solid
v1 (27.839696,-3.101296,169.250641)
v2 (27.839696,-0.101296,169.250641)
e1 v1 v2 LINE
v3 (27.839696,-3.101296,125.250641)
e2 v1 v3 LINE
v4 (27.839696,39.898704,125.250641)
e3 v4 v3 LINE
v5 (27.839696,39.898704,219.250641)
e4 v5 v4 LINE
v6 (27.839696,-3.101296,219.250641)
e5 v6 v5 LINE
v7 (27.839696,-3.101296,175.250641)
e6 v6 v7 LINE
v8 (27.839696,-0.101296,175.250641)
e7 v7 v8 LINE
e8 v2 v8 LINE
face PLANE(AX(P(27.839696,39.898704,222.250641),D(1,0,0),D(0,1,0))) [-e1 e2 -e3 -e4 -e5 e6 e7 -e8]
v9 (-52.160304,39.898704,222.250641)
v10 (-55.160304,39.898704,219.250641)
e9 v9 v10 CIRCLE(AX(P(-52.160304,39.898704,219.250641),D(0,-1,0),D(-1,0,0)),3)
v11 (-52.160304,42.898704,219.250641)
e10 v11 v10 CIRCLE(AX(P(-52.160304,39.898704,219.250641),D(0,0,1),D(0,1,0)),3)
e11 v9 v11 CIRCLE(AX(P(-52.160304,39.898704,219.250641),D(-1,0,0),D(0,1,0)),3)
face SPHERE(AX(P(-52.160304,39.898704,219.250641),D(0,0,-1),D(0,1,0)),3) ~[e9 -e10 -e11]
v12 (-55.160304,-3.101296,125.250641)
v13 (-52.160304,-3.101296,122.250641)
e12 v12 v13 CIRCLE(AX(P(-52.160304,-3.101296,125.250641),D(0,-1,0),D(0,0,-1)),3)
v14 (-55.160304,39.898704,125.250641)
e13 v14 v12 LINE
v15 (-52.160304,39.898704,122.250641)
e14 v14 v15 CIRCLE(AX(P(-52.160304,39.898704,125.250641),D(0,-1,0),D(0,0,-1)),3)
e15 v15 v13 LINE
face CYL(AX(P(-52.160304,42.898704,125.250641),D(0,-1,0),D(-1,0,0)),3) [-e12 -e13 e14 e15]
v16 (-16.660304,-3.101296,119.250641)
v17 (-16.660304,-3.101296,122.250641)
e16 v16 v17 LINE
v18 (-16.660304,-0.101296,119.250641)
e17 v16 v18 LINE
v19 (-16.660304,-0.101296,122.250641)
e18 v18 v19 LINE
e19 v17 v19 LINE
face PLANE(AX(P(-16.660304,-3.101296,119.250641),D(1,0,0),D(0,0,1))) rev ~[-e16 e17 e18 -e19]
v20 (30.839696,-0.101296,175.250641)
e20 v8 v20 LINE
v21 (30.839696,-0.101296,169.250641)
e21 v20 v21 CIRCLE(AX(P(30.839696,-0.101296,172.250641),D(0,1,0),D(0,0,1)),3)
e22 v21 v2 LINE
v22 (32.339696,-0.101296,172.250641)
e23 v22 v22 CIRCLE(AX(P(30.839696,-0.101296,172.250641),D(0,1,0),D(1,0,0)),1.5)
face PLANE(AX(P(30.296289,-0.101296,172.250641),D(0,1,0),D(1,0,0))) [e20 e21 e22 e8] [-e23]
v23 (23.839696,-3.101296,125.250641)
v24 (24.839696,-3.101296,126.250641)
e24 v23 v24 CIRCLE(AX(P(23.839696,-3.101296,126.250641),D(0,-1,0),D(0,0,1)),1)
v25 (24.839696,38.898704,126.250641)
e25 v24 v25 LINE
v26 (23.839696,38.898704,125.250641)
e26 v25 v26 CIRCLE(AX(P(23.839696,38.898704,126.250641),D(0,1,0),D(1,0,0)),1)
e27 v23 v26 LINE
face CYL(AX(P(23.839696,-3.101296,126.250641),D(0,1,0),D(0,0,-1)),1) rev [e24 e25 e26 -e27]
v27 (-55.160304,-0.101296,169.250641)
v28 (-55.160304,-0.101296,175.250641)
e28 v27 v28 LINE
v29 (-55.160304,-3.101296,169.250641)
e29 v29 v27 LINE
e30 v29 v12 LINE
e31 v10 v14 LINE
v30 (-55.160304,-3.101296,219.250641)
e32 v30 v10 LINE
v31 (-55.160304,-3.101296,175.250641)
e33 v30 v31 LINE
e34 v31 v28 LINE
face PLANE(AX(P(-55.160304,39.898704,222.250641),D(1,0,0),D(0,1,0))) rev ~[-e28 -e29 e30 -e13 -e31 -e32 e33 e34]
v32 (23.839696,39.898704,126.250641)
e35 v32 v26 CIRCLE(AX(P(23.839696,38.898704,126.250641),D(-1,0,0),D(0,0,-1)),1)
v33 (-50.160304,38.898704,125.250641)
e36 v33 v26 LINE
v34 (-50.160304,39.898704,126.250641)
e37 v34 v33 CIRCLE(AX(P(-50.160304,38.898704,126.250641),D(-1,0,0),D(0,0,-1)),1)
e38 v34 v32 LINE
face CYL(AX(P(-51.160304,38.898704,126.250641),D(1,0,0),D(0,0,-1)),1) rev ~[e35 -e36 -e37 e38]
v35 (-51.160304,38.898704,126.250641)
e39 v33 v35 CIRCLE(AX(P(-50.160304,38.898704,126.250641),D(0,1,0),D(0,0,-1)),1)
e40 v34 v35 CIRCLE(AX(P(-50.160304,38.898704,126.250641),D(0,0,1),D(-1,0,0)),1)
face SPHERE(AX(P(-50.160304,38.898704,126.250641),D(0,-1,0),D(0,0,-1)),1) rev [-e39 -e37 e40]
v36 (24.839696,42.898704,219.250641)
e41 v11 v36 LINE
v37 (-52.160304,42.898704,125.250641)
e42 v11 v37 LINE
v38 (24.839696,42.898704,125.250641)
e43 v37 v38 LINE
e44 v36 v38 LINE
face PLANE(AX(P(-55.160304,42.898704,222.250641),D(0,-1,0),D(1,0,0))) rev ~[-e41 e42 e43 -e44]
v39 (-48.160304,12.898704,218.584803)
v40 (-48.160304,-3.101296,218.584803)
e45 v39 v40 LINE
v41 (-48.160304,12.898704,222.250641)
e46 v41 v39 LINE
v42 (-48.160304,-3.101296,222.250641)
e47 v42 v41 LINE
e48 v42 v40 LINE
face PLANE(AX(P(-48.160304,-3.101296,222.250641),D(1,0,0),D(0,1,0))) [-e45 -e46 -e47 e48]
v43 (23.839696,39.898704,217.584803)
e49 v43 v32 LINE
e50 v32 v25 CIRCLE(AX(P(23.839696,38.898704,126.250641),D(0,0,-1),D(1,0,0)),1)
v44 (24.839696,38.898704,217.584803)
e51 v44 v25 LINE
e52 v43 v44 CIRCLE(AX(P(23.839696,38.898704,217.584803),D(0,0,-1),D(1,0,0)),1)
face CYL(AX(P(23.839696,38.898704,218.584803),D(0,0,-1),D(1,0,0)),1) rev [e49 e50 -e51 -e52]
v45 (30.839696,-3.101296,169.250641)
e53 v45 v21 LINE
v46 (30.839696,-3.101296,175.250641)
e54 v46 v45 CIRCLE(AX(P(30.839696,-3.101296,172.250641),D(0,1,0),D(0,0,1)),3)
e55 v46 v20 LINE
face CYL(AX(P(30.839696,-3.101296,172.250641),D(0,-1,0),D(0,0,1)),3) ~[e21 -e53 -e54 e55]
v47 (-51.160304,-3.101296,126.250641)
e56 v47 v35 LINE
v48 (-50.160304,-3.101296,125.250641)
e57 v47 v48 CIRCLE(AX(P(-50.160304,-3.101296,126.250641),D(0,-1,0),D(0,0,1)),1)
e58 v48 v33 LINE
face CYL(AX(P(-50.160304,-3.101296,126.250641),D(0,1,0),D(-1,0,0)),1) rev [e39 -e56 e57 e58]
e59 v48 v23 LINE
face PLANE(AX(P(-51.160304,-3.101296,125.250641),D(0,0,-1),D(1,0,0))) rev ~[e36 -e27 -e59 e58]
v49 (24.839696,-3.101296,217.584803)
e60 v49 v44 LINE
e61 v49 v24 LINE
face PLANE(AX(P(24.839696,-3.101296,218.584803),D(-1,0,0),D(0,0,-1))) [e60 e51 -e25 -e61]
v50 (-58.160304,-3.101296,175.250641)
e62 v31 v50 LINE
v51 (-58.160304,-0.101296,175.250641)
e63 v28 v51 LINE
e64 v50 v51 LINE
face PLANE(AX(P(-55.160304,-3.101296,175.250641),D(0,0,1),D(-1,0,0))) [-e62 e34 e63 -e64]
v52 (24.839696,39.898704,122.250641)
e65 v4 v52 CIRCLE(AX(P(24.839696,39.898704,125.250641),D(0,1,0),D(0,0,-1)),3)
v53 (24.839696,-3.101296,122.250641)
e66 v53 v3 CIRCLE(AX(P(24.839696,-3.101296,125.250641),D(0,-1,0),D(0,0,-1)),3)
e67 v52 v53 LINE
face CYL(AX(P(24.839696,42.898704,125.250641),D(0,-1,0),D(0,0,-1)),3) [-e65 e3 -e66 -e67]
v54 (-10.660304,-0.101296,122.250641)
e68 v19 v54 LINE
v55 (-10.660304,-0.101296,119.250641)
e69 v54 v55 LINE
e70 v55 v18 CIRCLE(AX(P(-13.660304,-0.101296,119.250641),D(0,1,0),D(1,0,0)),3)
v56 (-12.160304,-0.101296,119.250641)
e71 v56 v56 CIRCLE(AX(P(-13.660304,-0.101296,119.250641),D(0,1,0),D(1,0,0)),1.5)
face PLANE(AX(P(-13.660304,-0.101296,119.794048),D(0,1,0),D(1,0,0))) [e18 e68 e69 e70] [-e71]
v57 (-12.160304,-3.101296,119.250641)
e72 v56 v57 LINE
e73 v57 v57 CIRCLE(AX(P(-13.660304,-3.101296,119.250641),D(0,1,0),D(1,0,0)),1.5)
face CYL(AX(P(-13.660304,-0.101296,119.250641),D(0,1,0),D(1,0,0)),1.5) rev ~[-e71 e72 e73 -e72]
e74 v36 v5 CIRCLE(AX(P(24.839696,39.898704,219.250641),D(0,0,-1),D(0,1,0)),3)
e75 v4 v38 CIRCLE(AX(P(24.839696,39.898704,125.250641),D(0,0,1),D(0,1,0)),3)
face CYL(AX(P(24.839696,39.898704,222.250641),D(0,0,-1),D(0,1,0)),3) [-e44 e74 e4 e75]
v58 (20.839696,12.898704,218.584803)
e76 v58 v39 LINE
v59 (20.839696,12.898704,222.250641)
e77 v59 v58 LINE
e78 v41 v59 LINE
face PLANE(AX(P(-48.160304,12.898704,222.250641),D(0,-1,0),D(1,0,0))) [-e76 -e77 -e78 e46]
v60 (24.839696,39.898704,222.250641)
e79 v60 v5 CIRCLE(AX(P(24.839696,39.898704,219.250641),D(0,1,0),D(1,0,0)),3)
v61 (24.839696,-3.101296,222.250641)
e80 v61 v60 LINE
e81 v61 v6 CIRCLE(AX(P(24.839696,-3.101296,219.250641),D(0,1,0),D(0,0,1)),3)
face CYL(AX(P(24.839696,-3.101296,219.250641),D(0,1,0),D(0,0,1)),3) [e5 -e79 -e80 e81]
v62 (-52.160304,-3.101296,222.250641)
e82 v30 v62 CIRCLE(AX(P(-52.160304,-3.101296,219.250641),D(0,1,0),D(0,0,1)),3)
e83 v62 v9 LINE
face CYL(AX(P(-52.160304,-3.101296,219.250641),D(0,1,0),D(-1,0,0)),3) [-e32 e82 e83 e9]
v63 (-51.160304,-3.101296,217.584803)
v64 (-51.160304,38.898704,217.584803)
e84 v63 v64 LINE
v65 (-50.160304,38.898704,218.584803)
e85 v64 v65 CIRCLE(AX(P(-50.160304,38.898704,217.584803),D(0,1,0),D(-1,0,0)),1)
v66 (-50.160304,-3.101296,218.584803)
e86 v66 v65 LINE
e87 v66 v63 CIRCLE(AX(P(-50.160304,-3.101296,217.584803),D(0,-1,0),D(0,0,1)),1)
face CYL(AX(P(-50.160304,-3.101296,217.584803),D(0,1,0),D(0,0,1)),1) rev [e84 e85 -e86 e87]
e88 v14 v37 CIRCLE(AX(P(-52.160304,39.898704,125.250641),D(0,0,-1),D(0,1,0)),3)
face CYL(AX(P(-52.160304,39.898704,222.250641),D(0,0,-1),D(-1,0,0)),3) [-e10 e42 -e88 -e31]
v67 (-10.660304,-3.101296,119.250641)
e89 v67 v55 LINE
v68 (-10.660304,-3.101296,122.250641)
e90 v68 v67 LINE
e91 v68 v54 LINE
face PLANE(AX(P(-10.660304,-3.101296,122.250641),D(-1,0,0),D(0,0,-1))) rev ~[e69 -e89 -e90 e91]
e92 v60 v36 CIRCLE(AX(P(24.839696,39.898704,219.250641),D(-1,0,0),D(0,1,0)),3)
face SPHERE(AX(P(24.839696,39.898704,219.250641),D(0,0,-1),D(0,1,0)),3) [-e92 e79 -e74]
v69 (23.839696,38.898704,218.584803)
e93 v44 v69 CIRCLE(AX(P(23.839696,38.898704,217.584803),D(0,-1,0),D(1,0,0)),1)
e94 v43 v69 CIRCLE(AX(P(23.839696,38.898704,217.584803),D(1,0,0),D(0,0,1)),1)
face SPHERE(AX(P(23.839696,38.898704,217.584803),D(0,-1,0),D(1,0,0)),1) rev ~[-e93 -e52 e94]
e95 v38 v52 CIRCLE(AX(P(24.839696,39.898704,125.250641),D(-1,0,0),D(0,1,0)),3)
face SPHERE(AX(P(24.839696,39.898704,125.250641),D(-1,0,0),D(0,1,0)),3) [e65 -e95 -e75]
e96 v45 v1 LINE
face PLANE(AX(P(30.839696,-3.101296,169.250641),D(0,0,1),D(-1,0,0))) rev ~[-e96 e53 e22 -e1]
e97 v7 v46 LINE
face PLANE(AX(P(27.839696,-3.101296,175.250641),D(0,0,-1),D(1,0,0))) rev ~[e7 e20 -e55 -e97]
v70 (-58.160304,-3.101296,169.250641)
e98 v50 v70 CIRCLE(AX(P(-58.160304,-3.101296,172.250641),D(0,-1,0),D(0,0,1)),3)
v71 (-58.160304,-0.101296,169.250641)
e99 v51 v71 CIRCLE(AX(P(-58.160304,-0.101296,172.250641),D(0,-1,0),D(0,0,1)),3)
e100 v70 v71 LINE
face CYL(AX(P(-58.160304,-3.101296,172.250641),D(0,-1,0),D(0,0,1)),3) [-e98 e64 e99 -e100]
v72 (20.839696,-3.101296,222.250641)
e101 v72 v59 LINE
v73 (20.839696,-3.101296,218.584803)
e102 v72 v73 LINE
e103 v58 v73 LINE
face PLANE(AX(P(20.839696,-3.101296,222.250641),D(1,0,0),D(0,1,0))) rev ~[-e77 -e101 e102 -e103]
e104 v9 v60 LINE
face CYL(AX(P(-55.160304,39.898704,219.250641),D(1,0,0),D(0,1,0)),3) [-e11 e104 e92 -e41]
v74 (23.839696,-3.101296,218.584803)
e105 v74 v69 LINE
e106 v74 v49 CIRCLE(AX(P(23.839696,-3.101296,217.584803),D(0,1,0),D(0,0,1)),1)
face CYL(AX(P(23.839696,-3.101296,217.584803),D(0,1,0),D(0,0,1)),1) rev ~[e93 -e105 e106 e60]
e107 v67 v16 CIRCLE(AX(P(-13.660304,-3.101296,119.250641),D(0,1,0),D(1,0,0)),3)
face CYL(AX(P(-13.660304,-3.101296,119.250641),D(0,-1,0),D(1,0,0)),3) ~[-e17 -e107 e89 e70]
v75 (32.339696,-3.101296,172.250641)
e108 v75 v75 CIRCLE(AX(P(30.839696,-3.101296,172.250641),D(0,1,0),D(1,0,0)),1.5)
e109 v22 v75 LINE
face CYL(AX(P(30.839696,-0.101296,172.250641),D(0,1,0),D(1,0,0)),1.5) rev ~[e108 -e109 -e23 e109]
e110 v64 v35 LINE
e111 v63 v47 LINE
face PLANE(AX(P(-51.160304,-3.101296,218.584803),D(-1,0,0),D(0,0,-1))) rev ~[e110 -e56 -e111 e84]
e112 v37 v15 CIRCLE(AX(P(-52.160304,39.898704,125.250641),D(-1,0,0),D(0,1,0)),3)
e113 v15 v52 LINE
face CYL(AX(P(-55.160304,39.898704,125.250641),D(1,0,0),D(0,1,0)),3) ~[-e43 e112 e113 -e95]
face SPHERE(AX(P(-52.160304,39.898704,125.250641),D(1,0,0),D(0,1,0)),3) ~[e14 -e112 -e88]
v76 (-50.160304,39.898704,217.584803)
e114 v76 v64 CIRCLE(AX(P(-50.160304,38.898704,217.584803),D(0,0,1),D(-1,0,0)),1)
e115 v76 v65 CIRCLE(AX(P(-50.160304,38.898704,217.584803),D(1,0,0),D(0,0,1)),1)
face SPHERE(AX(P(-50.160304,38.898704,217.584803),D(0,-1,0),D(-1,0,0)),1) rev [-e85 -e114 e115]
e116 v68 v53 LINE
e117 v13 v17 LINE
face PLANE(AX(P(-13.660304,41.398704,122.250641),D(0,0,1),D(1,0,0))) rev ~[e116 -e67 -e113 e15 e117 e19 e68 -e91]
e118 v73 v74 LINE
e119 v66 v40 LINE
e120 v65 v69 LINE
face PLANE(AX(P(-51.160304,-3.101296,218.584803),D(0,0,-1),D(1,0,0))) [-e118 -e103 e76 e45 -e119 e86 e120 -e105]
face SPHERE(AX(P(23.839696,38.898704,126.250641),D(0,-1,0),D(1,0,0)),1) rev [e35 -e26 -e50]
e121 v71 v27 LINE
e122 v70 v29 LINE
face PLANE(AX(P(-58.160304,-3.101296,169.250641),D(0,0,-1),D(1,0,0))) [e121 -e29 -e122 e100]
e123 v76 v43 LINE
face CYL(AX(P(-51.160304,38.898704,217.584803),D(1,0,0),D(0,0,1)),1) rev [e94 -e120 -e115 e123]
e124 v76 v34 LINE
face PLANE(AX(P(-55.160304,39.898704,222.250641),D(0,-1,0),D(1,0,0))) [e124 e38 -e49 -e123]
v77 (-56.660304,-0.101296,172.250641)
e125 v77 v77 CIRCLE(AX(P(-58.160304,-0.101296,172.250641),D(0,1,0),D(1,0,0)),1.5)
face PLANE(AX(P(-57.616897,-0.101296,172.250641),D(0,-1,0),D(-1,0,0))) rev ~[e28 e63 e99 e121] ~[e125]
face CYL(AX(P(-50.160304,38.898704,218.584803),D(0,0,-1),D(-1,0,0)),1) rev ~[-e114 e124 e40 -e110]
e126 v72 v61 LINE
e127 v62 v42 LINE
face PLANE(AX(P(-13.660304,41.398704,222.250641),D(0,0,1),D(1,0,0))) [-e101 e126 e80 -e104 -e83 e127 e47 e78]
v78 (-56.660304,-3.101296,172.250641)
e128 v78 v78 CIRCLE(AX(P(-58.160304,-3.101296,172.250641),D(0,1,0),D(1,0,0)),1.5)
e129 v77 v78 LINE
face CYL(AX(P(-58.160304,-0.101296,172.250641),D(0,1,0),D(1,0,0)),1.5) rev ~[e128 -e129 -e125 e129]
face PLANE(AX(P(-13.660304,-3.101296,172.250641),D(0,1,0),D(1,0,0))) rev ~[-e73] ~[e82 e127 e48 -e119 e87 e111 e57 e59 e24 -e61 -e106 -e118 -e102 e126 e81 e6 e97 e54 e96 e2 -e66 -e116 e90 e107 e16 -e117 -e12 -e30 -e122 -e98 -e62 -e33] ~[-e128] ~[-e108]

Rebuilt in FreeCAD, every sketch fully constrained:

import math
import FreeCAD as App
import Part
import Sketcher

V = App.Vector


def edges_at(feature, points):
    """Names of the edges that pass closest to the given points."""
    edges = feature.Shape.Edges
    near = lambda p: min(range(len(edges)), key=lambda i: edges[i].distToShape(Part.Vertex(*p))[0])
    return sorted({f"Edge{near(p) + 1}" for p in points})


def add_polygon(sketch, points):
    """Adds a closed chain of lines whose ends are joined by coincident constraints."""
    first, n = sketch.GeometryCount, len(points)
    for a, b in zip(points, points[1:] + points[:1]):
        sketch.addGeometry(Part.LineSegment(App.Vector(*a, 0), App.Vector(*b, 0)), False)
    for i in range(n):
        sketch.addConstraint(Sketcher.Constraint("Coincident", first + i, 2, first + (i + 1) % n, 1))

doc = App.newDocument("Part")
body = doc.addObject("PartDesign::Body", "Body")

# Sketch on XZ plane
sketch1 = doc.addObject("Sketcher::SketchObject", "Sketch")
body.addObject(sketch1)
sketch1.AttachmentSupport = (doc.XZ_Plane, [""])
sketch1.MapMode = "FlatFace"
sketch1.AttachmentOffset = App.Placement(V(0, 0, 3.101296), App.Rotation())
add_polygon(sketch1, [(-55.160304, 122.250641), (-55.160304, 222.250641), (27.839696, 222.250641), (27.839696, 122.250641)])  # lines 0-3
add_polygon(sketch1, [(24.839696, 218.584803), (-51.160304, 218.584803), (-51.160304, 125.250641), (24.839696, 125.250641)])  # lines 4-7
sketch1.addConstraint(Sketcher.Constraint("Vertical", 0))
sketch1.addConstraint(Sketcher.Constraint("Horizontal", 1))
sketch1.addConstraint(Sketcher.Constraint("Vertical", 2))
sketch1.addConstraint(Sketcher.Constraint("Horizontal", 3))
sketch1.addConstraint(Sketcher.Constraint("Horizontal", 4))
sketch1.addConstraint(Sketcher.Constraint("Vertical", 5))
sketch1.addConstraint(Sketcher.Constraint("Horizontal", 6))
sketch1.addConstraint(Sketcher.Constraint("Vertical", 7))
sketch1.addConstraint(Sketcher.Constraint("DistanceX", 1, 1, 1, 2, 83.0))
sketch1.addConstraint(Sketcher.Constraint("DistanceX", 4, 2, 4, 1, 76.0))
sketch1.addConstraint(Sketcher.Constraint("DistanceY", 0, 1, 0, 2, 100.0))
sketch1.addConstraint(Sketcher.Constraint("DistanceX", 0, 2, 4, 2, 4.0))
sketch1.addConstraint(Sketcher.Constraint("DistanceY", 3, 2, 5, 2, 3.0))
sketch1.addConstraint(Sketcher.Constraint("DistanceY", 5, 2, 5, 1, 93.334162))
sketch1.addConstraint(Sketcher.Constraint("DistanceY", -1, 1, 0, 2, 222.250641))
sketch1.addConstraint(Sketcher.Constraint("DistanceX", 0, 2, -1, 1, 55.160304))
pad1 = doc.addObject("PartDesign::Pad", "Pad")
body.addObject(pad1)
pad1.Profile = sketch1
pad1.Length = 43
pad1.Reversed = True

# Sketch on XY plane
sketch2 = doc.addObject("Sketcher::SketchObject", "Sketch001")
body.addObject(sketch2)
sketch2.AttachmentSupport = (doc.XY_Plane, [""])
sketch2.MapMode = "FlatFace"
sketch2.AttachmentOffset = App.Placement(V(0, 0, 222.250641), App.Rotation())
add_polygon(sketch2, [(-55.160304, 42.898704), (-55.160304, 39.898704), (27.839696, 39.898704), (27.839696, 42.898704)])  # lines 0-3
sketch2.addConstraint(Sketcher.Constraint("Vertical", 0))
sketch2.addConstraint(Sketcher.Constraint("Horizontal", 1))
sketch2.addConstraint(Sketcher.Constraint("Vertical", 2))
sketch2.addConstraint(Sketcher.Constraint("Horizontal", 3))
sketch2.addConstraint(Sketcher.Constraint("DistanceX", 1, 1, 1, 2, 83.0))
sketch2.addConstraint(Sketcher.Constraint("DistanceY", 0, 2, 0, 1, 3.0))
sketch2.addConstraint(Sketcher.Constraint("DistanceX", 0, 2, -1, 1, 55.160304))
sketch2.addConstraint(Sketcher.Constraint("DistanceY", -1, 1, 0, 2, 39.898704))
pad2 = doc.addObject("PartDesign::Pad", "Pad001")
body.addObject(pad2)
pad2.Profile = sketch2
pad2.Length = 100
pad2.Reversed = True

# Sketch on XY plane
sketch3 = doc.addObject("Sketcher::SketchObject", "Sketch002")
body.addObject(sketch3)
sketch3.AttachmentSupport = (doc.XY_Plane, [""])
sketch3.MapMode = "FlatFace"
sketch3.AttachmentOffset = App.Placement(V(0, 0, 222.250641), App.Rotation())
add_polygon(sketch3, [(-48.160304, 12.898704), (-48.160304, -3.101296), (20.839696, -3.101296), (20.839696, 12.898704)])  # lines 0-3
sketch3.addConstraint(Sketcher.Constraint("Vertical", 0))
sketch3.addConstraint(Sketcher.Constraint("Horizontal", 1))
sketch3.addConstraint(Sketcher.Constraint("Vertical", 2))
sketch3.addConstraint(Sketcher.Constraint("Horizontal", 3))
sketch3.addConstraint(Sketcher.Constraint("DistanceX", 1, 1, 1, 2, 69.0))
sketch3.addConstraint(Sketcher.Constraint("DistanceY", 0, 2, 0, 1, 16.0))
sketch3.addConstraint(Sketcher.Constraint("DistanceX", 0, 2, -1, 1, 48.160304))
sketch3.addConstraint(Sketcher.Constraint("DistanceY", 0, 2, -1, 1, 3.101296))
pocket1 = doc.addObject("PartDesign::Pocket", "Pocket")
body.addObject(pocket1)
pocket1.Profile = sketch3
pocket1.Length = 10

# Sketch on XZ plane
sketch4 = doc.addObject("Sketcher::SketchObject", "Sketch003")
body.addObject(sketch4)
sketch4.AttachmentSupport = (doc.XZ_Plane, [""])
sketch4.MapMode = "FlatFace"
sketch4.AttachmentOffset = App.Placement(V(0, 0, 3.101296), App.Rotation())
sketch4.addGeometry(Part.LineSegment(V(-55.160304, 169.250641, 0), V(-58.160304, 169.250641, 0)), False)
sketch4.addGeometry(Part.ArcOfCircle(Part.Circle(V(-58.160304, 172.250641, 0), V(0, 0, 1), 3), math.radians(90), math.radians(270)), False)
sketch4.addGeometry(Part.LineSegment(V(-58.160304, 175.250641, 0), V(-55.160304, 175.250641, 0)), False)
sketch4.addGeometry(Part.LineSegment(V(-55.160304, 175.250641, 0), V(-55.160304, 169.250641, 0)), False)
sketch4.addGeometry(Part.LineSegment(V(-16.660304, 119.250641, 0), V(-16.660304, 122.250641, 0)), False)
sketch4.addGeometry(Part.LineSegment(V(-16.660304, 122.250641, 0), V(-10.660304, 122.250641, 0)), False)
sketch4.addGeometry(Part.LineSegment(V(-10.660304, 122.250641, 0), V(-10.660304, 119.250641, 0)), False)
sketch4.addGeometry(Part.ArcOfCircle(Part.Circle(V(-13.660304, 119.250641, 0), V(0, 0, 1), 3), math.radians(180), math.radians(360)), False)
sketch4.addGeometry(Part.LineSegment(V(30.839696, 169.250641, 0), V(27.839696, 169.250641, 0)), False)
sketch4.addGeometry(Part.LineSegment(V(27.839696, 169.250641, 0), V(27.839696, 175.250641, 0)), False)
sketch4.addGeometry(Part.LineSegment(V(27.839696, 175.250641, 0), V(30.839696, 175.250641, 0)), False)
sketch4.addGeometry(Part.ArcOfCircle(Part.Circle(V(30.839696, 172.250641, 0), V(0, 0, 1), 3), math.radians(-90), math.radians(90)), False)
sketch4.addConstraint(Sketcher.Constraint("Tangent", 0, 2, 1, 2))
sketch4.addConstraint(Sketcher.Constraint("Tangent", 1, 1, 2, 1))
sketch4.addConstraint(Sketcher.Constraint("Coincident", 2, 2, 3, 1))
sketch4.addConstraint(Sketcher.Constraint("Coincident", 3, 2, 0, 1))
sketch4.addConstraint(Sketcher.Constraint("Coincident", 4, 2, 5, 1))
sketch4.addConstraint(Sketcher.Constraint("Coincident", 5, 2, 6, 1))
sketch4.addConstraint(Sketcher.Constraint("Tangent", 6, 2, 7, 2))
sketch4.addConstraint(Sketcher.Constraint("Tangent", 7, 1, 4, 1))
sketch4.addConstraint(Sketcher.Constraint("Coincident", 8, 2, 9, 1))
sketch4.addConstraint(Sketcher.Constraint("Coincident", 9, 2, 10, 1))
sketch4.addConstraint(Sketcher.Constraint("Tangent", 10, 2, 11, 2))
sketch4.addConstraint(Sketcher.Constraint("Tangent", 11, 1, 8, 1))
sketch4.addConstraint(Sketcher.Constraint("Horizontal", 0))
sketch4.addConstraint(Sketcher.Constraint("Horizontal", 2))
sketch4.addConstraint(Sketcher.Constraint("Vertical", 3))
sketch4.addConstraint(Sketcher.Constraint("Vertical", 4))
sketch4.addConstraint(Sketcher.Constraint("Horizontal", 5))
sketch4.addConstraint(Sketcher.Constraint("Vertical", 6))
sketch4.addConstraint(Sketcher.Constraint("Horizontal", 8))
sketch4.addConstraint(Sketcher.Constraint("Vertical", 9))
sketch4.addConstraint(Sketcher.Constraint("Horizontal", 10))
sketch4.addConstraint(Sketcher.Constraint("Equal", 1, 7))
sketch4.addConstraint(Sketcher.Constraint("Equal", 7, 11))
sketch4.addConstraint(Sketcher.Constraint("Horizontal", 1, 3, 11, 3))
sketch4.addConstraint(Sketcher.Constraint("Equal", 2, 8))
sketch4.addConstraint(Sketcher.Constraint("Equal", 10, 4))
sketch4.addConstraint(Sketcher.Constraint("Radius", 1, 3.0))
sketch4.addConstraint(Sketcher.Constraint("DistanceX", 0, 2, 0, 1, 3.0))
sketch4.addConstraint(Sketcher.Constraint("DistanceY", 7, 3, 1, 3, 53.0))
sketch4.addConstraint(Sketcher.Constraint("DistanceX", 1, 3, 11, 3, 89.0))
sketch4.addConstraint(Sketcher.Constraint("DistanceX", 1, 3, 7, 3, 44.5))
sketch4.addConstraint(Sketcher.Constraint("DistanceY", -1, 1, 1, 3, 172.250641))
sketch4.addConstraint(Sketcher.Constraint("DistanceX", 1, 3, -1, 1, 58.160304))
pad3 = doc.addObject("PartDesign::Pad", "Pad002")
body.addObject(pad3)
pad3.Profile = sketch4
pad3.Length = 3
pad3.Reversed = True

# Sketch on XZ plane
sketch5 = doc.addObject("Sketcher::SketchObject", "Sketch004")
body.addObject(sketch5)
sketch5.AttachmentSupport = (doc.XZ_Plane, [""])
sketch5.MapMode = "FlatFace"
sketch5.AttachmentOffset = App.Placement(V(0, 0, 0.101296), App.Rotation())
sketch5.addGeometry(Part.Circle(V(30.839696, 172.250641, 0), V(0, 0, 1), 1.5), False)
sketch5.addGeometry(Part.Circle(V(-13.660304, 119.250641, 0), V(0, 0, 1), 1.5), False)
sketch5.addGeometry(Part.Circle(V(-58.160304, 172.250641, 0), V(0, 0, 1), 1.5), False)
sketch5.addConstraint(Sketcher.Constraint("Equal", 0, 1))
sketch5.addConstraint(Sketcher.Constraint("Equal", 1, 2))
sketch5.addConstraint(Sketcher.Constraint("Horizontal", 0, 3, 2, 3))
sketch5.addConstraint(Sketcher.Constraint("Diameter", 0, 3.0))
sketch5.addConstraint(Sketcher.Constraint("DistanceY", 1, 3, 0, 3, 53.0))
sketch5.addConstraint(Sketcher.Constraint("DistanceX", 2, 3, 0, 3, 89.0))
sketch5.addConstraint(Sketcher.Constraint("DistanceX", 1, 3, 0, 3, 44.5))
sketch5.addConstraint(Sketcher.Constraint("DistanceY", -1, 1, 0, 3, 172.250641))
sketch5.addConstraint(Sketcher.Constraint("DistanceX", -1, 1, 0, 3, 30.839696))
pocket2 = doc.addObject("PartDesign::Pocket", "Pocket001")
body.addObject(pocket2)
pocket2.Profile = sketch5
pocket2.Length = 13
pocket2.Reversed = True
doc.recompute()

fillet = doc.addObject("PartDesign::Fillet", "Fillet")
body.addObject(fillet)
fillet.Base = (pocket2, edges_at(pocket2, [
    (-13.66, 42.899, 122.251),
    (-55.16, 42.899, 172.251),
    (27.84, 42.899, 172.251),
    (-13.66, 42.899, 222.251),
    (-55.16, 19.899, 122.251),
    (27.84, 19.899, 122.251),
    (27.84, 19.899, 222.251),
    (-55.16, 19.899, 222.251),
]))
fillet.Radius = 3
doc.recompute()

fillet2 = doc.addObject("PartDesign::Fillet", "Fillet001")
body.addObject(fillet2)
fillet2.Base = (fillet, edges_at(fillet, [
    (24.84, 18.399, 218.585),
    (24.84, 18.399, 125.251),
    (-51.16, 18.399, 125.251),
    (-51.16, 18.399, 218.585),
    (24.84, 39.899, 171.918),
    (-13.16, 39.899, 125.251),
    (-51.16, 39.899, 171.918),
    (-13.16, 39.899, 218.585),
]))
fillet2.Radius = 1

doc.recompute()
